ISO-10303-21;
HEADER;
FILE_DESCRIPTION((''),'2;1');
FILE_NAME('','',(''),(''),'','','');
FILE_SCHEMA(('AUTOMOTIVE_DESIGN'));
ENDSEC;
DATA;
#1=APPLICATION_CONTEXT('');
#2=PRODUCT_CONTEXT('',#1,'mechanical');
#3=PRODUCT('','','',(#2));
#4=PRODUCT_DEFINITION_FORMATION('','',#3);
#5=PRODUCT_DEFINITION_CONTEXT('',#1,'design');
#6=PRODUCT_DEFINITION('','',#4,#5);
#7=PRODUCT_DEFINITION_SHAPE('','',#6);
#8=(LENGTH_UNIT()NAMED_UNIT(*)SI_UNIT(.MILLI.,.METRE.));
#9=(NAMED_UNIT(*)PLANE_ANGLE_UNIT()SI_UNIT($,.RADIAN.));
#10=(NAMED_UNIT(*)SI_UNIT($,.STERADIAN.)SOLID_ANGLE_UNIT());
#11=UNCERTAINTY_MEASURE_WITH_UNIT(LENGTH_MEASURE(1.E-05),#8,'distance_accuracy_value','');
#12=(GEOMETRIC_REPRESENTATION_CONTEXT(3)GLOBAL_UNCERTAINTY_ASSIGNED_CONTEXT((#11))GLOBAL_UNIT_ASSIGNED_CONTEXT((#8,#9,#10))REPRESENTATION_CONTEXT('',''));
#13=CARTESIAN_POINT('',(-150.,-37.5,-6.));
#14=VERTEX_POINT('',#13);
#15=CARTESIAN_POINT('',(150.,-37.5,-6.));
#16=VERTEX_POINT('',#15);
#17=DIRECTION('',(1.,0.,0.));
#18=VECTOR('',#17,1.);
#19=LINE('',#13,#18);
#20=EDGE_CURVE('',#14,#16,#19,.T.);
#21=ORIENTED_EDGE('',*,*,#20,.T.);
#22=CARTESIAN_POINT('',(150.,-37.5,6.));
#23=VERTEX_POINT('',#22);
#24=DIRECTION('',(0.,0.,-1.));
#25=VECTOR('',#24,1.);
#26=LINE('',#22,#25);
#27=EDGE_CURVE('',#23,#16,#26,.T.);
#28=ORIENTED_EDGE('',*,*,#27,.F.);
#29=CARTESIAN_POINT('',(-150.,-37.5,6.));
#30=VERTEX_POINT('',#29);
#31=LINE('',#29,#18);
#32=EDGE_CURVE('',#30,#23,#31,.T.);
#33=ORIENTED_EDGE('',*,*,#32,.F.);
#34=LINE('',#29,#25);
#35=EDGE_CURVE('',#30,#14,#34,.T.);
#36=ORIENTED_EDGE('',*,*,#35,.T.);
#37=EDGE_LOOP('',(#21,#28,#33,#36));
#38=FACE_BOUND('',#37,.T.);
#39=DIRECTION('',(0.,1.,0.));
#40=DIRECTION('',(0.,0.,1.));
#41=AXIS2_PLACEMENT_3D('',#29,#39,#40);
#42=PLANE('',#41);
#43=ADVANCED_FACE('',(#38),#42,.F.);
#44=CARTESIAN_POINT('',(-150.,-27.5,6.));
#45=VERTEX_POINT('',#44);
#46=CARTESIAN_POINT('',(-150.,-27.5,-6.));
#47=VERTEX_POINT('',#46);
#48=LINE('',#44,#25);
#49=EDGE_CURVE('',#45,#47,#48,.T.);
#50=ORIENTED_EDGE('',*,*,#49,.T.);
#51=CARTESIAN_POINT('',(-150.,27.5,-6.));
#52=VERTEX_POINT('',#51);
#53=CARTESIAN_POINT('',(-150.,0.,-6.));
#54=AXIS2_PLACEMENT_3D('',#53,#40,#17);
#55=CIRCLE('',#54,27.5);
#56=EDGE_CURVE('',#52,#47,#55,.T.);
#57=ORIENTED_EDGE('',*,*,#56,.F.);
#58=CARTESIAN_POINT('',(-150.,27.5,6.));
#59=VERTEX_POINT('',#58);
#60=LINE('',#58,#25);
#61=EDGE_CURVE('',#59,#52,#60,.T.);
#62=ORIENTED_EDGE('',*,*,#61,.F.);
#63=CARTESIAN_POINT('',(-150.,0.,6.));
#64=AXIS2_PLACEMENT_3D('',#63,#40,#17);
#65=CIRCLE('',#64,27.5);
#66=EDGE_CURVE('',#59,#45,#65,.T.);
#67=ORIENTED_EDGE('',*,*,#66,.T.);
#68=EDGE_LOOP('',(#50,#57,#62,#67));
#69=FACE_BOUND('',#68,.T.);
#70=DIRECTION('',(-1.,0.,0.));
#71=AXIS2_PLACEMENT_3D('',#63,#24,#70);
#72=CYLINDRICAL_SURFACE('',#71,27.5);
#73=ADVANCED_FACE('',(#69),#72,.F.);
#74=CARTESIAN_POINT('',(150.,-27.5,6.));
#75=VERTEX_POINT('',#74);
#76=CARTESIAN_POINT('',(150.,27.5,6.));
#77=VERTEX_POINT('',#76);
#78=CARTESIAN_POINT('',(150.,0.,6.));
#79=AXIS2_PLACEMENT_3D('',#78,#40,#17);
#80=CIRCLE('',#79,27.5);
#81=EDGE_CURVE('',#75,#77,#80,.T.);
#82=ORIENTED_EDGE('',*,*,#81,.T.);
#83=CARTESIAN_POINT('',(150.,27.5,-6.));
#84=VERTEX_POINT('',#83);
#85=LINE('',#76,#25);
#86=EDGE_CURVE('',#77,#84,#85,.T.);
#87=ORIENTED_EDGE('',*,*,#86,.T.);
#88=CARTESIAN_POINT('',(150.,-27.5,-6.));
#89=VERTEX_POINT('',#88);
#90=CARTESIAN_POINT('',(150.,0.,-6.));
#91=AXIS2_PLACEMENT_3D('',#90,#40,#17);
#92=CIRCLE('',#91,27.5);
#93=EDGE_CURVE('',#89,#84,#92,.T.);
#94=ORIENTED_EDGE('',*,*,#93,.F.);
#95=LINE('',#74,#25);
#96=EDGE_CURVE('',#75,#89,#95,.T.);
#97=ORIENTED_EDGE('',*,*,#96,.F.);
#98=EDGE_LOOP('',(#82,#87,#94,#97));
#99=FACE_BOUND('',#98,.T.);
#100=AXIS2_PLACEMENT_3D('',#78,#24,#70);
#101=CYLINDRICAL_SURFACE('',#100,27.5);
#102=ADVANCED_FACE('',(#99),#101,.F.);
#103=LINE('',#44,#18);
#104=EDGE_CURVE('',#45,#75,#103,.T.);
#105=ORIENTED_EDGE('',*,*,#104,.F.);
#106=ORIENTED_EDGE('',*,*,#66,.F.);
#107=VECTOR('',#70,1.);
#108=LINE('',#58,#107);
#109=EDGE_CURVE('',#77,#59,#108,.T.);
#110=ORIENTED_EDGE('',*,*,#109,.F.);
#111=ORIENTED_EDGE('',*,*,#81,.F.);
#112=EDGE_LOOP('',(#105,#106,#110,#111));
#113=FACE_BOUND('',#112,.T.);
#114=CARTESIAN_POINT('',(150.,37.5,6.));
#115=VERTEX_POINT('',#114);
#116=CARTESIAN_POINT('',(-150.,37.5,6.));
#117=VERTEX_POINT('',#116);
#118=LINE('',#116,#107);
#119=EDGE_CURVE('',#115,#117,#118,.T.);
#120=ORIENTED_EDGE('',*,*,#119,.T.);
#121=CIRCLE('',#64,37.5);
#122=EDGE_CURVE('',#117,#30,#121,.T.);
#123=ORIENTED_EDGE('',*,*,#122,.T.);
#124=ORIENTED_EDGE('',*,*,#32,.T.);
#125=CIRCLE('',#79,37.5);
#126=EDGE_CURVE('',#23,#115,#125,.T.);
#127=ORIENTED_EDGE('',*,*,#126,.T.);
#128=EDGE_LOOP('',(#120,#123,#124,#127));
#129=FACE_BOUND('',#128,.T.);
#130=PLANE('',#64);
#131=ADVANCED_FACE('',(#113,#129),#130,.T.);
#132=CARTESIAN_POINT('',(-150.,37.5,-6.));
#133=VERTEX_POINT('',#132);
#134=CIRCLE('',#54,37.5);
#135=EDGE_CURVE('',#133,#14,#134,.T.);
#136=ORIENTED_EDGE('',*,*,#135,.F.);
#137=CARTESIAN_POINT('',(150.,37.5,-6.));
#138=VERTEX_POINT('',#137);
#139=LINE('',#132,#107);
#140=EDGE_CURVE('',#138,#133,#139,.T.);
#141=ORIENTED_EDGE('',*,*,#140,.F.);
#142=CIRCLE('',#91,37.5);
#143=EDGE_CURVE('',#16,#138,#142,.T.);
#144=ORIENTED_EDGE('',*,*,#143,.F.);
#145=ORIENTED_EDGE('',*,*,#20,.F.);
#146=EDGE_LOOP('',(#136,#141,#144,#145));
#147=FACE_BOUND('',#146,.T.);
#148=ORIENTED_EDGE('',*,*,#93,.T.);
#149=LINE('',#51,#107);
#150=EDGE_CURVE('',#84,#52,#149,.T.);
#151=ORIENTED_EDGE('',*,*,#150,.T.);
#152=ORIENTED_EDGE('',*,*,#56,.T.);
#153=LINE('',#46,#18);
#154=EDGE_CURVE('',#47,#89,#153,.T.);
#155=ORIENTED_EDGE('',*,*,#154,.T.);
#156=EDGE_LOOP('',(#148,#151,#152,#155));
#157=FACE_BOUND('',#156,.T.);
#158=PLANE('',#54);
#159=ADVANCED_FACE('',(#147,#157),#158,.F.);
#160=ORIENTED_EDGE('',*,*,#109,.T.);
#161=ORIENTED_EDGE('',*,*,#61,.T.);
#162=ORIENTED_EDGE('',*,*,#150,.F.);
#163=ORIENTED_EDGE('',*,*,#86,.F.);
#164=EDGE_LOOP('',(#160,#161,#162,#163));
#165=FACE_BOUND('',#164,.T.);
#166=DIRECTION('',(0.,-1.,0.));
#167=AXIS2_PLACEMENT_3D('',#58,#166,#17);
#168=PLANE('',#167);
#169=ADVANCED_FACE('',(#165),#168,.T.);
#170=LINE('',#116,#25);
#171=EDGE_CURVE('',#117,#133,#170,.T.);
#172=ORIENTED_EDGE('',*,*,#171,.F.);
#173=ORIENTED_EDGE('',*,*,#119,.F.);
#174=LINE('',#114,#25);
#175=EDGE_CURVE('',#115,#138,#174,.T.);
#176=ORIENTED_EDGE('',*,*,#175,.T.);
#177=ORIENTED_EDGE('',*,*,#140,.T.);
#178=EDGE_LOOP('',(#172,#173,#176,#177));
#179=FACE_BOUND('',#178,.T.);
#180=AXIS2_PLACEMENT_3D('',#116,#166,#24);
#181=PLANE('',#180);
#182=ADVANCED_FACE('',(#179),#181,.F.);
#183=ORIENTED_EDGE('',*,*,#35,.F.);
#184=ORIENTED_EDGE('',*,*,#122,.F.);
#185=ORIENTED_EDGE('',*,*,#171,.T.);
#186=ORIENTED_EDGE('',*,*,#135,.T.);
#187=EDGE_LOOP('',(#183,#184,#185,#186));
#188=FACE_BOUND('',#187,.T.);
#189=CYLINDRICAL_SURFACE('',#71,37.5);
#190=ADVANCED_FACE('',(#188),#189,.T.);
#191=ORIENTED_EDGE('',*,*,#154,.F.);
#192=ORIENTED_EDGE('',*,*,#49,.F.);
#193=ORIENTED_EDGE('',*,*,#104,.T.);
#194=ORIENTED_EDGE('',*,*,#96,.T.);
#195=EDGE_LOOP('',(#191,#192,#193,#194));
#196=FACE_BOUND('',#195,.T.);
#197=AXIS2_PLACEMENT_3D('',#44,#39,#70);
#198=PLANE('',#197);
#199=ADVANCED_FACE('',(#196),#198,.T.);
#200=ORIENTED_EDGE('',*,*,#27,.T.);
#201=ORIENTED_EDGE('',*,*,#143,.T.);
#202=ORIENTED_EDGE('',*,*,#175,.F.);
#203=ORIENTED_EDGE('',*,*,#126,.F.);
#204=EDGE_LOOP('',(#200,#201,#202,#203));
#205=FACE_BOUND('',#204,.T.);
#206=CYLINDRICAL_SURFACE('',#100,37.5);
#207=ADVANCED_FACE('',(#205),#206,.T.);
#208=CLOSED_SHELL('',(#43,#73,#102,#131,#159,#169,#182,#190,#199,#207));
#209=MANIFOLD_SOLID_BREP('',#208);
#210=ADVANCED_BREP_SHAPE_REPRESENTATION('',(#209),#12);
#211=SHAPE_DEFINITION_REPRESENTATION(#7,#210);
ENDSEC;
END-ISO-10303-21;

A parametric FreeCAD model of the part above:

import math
import FreeCAD as App
import Part
import Sketcher
from FreeCAD import Vector

doc = App.newDocument("Part")
body = doc.addObject("PartDesign::Body", "Body")

sketch1 = doc.addObject("Sketcher::SketchObject", "Sketch")
body.addObject(sketch1)
sketch1.AttachmentSupport = (doc.XY_Plane, [""])
sketch1.MapMode = "FlatFace"
sketch1.addGeometry(Part.LineSegment(Vector(150, 38, 0), Vector(-150, 38, 0)), False)
sketch1.addGeometry(Part.ArcOfCircle(Part.Circle(Vector(-150, 0, 0), Vector(0, 0, 1), 38), math.radians(90), math.radians(270)), False)
sketch1.addGeometry(Part.LineSegment(Vector(-150, -38, 0), Vector(150, -38, 0)), False)
sketch1.addGeometry(Part.ArcOfCircle(Part.Circle(Vector(150, 0, 0), Vector(0, 0, 1), 38), math.radians(-90), math.radians(90)), False)
sketch1.addGeometry(Part.LineSegment(Vector(-150, 28, 0), Vector(150, 28, 0)), False)
sketch1.addGeometry(Part.ArcOfCircle(Part.Circle(Vector(150, 0, 0), Vector(0, 0, 1), 28), math.radians(-90), math.radians(90)), False)
sketch1.addGeometry(Part.LineSegment(Vector(150, -28, 0), Vector(-150, -28, 0)), False)
sketch1.addGeometry(Part.ArcOfCircle(Part.Circle(Vector(-150, 0, 0), Vector(0, 0, 1), 28), math.radians(90), math.radians(270)), False)
sketch1.addConstraint(Sketcher.Constraint("Tangent", 0, 2, 1, 1))
sketch1.addConstraint(Sketcher.Constraint("Tangent", 1, 2, 2, 1))
sketch1.addConstraint(Sketcher.Constraint("Tangent", 2, 2, 3, 1))
sketch1.addConstraint(Sketcher.Constraint("Tangent", 3, 2, 0, 1))
sketch1.addConstraint(Sketcher.Constraint("Tangent", 4, 2, 5, 2))
sketch1.addConstraint(Sketcher.Constraint("Tangent", 5, 1, 6, 1))
sketch1.addConstraint(Sketcher.Constraint("Tangent", 6, 2, 7, 2))
sketch1.addConstraint(Sketcher.Constraint("Tangent", 7, 1, 4, 1))
sketch1.addConstraint(Sketcher.Constraint("Horizontal", 0))
sketch1.addConstraint(Sketcher.Constraint("Horizontal", 2))
sketch1.addConstraint(Sketcher.Constraint("Horizontal", 4))
sketch1.addConstraint(Sketcher.Constraint("Horizontal", 6))
sketch1.addConstraint(Sketcher.Constraint("Coincident", 5, 3, 3, 3))
sketch1.addConstraint(Sketcher.Constraint("Symmetric", 1, 3, 3, 3, -1, 1))
sketch1.addConstraint(Sketcher.Constraint("Vertical", 7, 3, 0, 2))
sketch1.addConstraint(Sketcher.Constraint("Radius", 1, 37.5))
sketch1.addConstraint(Sketcher.Constraint("Radius", 5, 27.5))
sketch1.addConstraint(Sketcher.Constraint("DistanceX", 0, 2, 0, 1, 300.0))
pad1 = doc.addObject("PartDesign::Pad", "Pad")
body.addObject(pad1)
pad1.Profile = sketch1
pad1.Length = 12
pad1.Midplane = True

doc.recompute()
